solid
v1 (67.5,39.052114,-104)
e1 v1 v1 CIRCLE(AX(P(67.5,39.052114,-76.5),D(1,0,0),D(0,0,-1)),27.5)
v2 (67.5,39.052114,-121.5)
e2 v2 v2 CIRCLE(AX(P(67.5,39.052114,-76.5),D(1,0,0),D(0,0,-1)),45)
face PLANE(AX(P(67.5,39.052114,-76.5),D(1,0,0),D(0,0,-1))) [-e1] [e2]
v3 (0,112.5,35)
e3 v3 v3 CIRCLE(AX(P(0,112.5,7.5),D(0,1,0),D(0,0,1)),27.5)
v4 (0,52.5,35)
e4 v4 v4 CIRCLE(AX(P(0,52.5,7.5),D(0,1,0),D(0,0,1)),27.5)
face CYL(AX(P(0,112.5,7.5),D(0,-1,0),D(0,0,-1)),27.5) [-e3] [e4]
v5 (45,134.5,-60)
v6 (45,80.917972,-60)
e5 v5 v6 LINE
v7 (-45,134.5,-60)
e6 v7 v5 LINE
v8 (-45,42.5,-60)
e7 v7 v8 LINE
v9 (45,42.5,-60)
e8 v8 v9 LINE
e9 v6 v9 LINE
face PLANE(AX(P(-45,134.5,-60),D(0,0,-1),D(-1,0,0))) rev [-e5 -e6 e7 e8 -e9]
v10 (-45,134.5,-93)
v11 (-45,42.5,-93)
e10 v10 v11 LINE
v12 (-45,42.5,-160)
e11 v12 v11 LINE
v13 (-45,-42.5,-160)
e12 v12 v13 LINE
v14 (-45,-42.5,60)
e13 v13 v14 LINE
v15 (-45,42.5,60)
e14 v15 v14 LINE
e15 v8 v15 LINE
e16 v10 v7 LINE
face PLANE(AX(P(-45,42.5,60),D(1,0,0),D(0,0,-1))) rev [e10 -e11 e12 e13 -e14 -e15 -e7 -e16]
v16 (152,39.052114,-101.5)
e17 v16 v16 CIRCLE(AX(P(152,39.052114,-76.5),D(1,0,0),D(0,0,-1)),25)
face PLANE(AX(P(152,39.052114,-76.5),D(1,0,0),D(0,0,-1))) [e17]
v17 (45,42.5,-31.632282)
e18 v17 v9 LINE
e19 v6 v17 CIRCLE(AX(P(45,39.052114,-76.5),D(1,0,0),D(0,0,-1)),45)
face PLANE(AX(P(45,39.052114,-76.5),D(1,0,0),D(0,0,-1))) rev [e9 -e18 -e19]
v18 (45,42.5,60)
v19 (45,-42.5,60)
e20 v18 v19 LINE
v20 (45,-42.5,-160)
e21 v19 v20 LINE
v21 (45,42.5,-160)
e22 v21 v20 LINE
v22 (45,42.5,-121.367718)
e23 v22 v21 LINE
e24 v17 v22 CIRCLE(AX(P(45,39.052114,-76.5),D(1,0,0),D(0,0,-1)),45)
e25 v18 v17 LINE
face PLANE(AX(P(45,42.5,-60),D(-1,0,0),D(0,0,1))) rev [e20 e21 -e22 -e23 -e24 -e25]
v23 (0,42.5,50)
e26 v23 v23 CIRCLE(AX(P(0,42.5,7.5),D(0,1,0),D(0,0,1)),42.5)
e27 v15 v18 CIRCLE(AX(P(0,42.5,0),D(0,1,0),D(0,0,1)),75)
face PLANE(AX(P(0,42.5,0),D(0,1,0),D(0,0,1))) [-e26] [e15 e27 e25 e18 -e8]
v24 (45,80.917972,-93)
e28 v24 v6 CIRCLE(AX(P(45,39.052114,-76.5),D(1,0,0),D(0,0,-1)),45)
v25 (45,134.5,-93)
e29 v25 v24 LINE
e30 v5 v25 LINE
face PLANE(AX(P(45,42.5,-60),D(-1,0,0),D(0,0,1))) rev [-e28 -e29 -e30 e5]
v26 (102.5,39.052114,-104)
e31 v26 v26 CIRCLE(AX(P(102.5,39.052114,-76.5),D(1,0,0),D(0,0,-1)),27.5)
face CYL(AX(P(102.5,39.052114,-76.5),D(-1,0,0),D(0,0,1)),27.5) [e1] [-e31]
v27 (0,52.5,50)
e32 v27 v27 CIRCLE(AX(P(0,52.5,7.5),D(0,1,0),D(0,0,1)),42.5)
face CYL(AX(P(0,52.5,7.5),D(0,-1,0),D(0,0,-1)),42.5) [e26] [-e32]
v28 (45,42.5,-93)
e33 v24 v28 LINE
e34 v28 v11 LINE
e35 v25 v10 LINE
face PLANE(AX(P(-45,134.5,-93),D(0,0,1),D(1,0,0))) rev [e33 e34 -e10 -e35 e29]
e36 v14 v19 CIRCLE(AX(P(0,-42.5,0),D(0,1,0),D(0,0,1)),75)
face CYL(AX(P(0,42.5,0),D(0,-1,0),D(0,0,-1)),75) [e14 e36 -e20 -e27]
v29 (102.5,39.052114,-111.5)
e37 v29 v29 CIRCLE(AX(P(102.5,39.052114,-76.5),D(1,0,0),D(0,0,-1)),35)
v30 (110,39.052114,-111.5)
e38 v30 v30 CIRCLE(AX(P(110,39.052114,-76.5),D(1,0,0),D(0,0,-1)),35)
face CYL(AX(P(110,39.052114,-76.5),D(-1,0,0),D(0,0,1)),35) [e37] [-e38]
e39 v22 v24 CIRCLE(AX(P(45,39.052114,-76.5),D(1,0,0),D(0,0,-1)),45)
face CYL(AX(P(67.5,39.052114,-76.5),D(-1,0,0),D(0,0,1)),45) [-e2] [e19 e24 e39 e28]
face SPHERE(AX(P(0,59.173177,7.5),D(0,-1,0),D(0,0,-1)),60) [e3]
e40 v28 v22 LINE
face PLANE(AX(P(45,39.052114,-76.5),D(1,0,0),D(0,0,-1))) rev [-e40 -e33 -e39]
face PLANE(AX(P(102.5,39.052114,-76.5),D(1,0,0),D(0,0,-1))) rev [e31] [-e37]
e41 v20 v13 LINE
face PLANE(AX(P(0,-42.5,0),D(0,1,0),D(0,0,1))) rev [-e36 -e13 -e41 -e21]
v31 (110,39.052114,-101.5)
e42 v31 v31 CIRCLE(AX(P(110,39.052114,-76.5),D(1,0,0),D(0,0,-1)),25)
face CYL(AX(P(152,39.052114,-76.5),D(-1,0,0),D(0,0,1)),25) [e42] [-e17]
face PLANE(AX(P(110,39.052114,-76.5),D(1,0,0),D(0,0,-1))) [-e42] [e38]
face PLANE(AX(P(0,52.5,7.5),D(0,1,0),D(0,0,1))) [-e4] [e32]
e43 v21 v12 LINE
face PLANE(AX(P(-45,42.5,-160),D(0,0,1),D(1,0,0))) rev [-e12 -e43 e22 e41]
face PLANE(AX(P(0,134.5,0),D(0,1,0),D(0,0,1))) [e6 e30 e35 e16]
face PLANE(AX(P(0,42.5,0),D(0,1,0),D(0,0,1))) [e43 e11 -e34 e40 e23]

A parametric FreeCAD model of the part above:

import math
import FreeCAD as App
import Part
import Sketcher

doc = App.newDocument("Part")
body = doc.addObject("PartDesign::Body", "Body")

# Sketch on XZ plane
sketch1 = body.newObject("Sketcher::SketchObject", "Sketch")
sketch1.AttachmentSupport = (doc.getObject("XZ_Plane"), [""])
sketch1.MapMode = "FlatFace"
sketch1.addGeometry(Part.LineSegment(App.Vector(45, -160, 0), App.Vector(-45, -160, 0)), False)
sketch1.addGeometry(Part.LineSegment(App.Vector(-45, -160, 0), App.Vector(-45, 60, 0)), False)
sketch1.addGeometry(Part.ArcOfCircle(Part.Circle(App.Vector(0, 0, 0), App.Vector(0, 0, 1), 75), math.radians(53), math.radians(127)), False)
sketch1.addGeometry(Part.LineSegment(App.Vector(45, 60, 0), App.Vector(45, -160, 0)), False)
sketch1.addConstraint(Sketcher.Constraint("Coincident", 0, 2, 1, 1))
sketch1.addConstraint(Sketcher.Constraint("Coincident", 1, 2, 2, 2))
sketch1.addConstraint(Sketcher.Constraint("Coincident", 2, 1, 3, 1))
sketch1.addConstraint(Sketcher.Constraint("Coincident", 3, 2, 0, 1))
sketch1.addConstraint(Sketcher.Constraint("Horizontal", 0))
sketch1.addConstraint(Sketcher.Constraint("Vertical", 1))
sketch1.addConstraint(Sketcher.Constraint("Vertical", 3))
sketch1.addConstraint(Sketcher.Constraint("Coincident", 2, 3, -1, 1))
sketch1.addConstraint(Sketcher.Constraint("Horizontal", 1, 2, 2, 1))
sketch1.addConstraint(Sketcher.Constraint("Radius", 2, 75.0))
sketch1.addConstraint(Sketcher.Constraint("DistanceX", 0, 2, 0, 1, 90.0))
sketch1.addConstraint(Sketcher.Constraint("DistanceY", 1, 1, 1, 2, 220.0))
pad1 = body.newObject("PartDesign::Pad", "Pad")
pad1.Profile = sketch1
pad1.Length = 85
pad1.Midplane = True

# Sketch on XZ plane
sketch2 = body.newObject("Sketcher::SketchObject", "Sketch001")
sketch2.AttachmentSupport = (doc.getObject("XZ_Plane"), [""])
sketch2.MapMode = "FlatFace"
sketch2.AttachmentOffset = App.Placement(App.Vector(0, 0, -42.5), App.Rotation())
sketch2.addGeometry(Part.Circle(App.Vector(0, 8, 0), App.Vector(0, 0, 1), 42), False)
sketch2.addConstraint(Sketcher.Constraint("PointOnObject", 0, 3, -2))
sketch2.addConstraint(Sketcher.Constraint("Diameter", 0, 85.0))
sketch2.addConstraint(Sketcher.Constraint("DistanceY", -1, 1, 0, 3, 7.5))
pad2 = body.newObject("PartDesign::Pad", "Pad001")
pad2.Profile = sketch2
pad2.Length = 10
pad2.Reversed = True

# Sketch on XZ plane
sketch3 = body.newObject("Sketcher::SketchObject", "Sketch002")
sketch3.AttachmentSupport = (doc.getObject("XZ_Plane"), [""])
sketch3.MapMode = "FlatFace"
sketch3.AttachmentOffset = App.Placement(App.Vector(0, 0, -52.5), App.Rotation())
sketch3.addGeometry(Part.Circle(App.Vector(0, 8, 0), App.Vector(0, 0, 1), 28), False)
sketch3.addConstraint(Sketcher.Constraint("PointOnObject", 0, 3, -2))
sketch3.addConstraint(Sketcher.Constraint("Diameter", 0, 55.0))
sketch3.addConstraint(Sketcher.Constraint("DistanceY", -1, 1, 0, 3, 7.5))
pad3 = body.newObject("PartDesign::Pad", "Pad002")
pad3.Profile = sketch3
pad3.Length = 60
pad3.Reversed = True

# Sketch on YZ plane
sketch4 = body.newObject("Sketcher::SketchObject", "Sketch003")
sketch4.AttachmentSupport = (doc.getObject("YZ_Plane"), [""])
sketch4.MapMode = "FlatFace"
sketch4.addGeometry(Part.LineSegment(App.Vector(112, 35, 0), App.Vector(112, 8, 0)), False)
sketch4.addGeometry(Part.LineSegment(App.Vector(112, 8, 0), App.Vector(119, 8, 0)), False)
sketch4.addGeometry(Part.ArcOfCircle(Part.Circle(App.Vector(59, 7, 0), App.Vector(0, 0, 1), 60), math.radians(0), math.radians(27)), False)
sketch4.addGeometry(Part.LineSegment(App.Vector(59, 8, 0), App.Vector(119, 8, 0)), True)  # axis
sketch4.addConstraint(Sketcher.Constraint("Coincident", 0, 2, 1, 1))
sketch4.addConstraint(Sketcher.Constraint("Coincident", 1, 2, 2, 1))
sketch4.addConstraint(Sketcher.Constraint("Coincident", 2, 2, 0, 1))
sketch4.addConstraint(Sketcher.Constraint("Vertical", 0))
sketch4.addConstraint(Sketcher.Constraint("Horizontal", 1))
sketch4.addConstraint(Sketcher.Constraint("Horizontal", 3))
sketch4.addConstraint(Sketcher.Constraint("Coincident", 3, 1, 2, 3))
sketch4.addConstraint(Sketcher.Constraint("Coincident", 3, 2, 1, 2))
sketch4.addConstraint(Sketcher.Constraint("Radius", 2, 60.0))
sketch4.addConstraint(Sketcher.Constraint("DistanceY", 0, 2, 0, 1, 27.5))
sketch4.addConstraint(Sketcher.Constraint("DistanceY", -1, 1, 2, 2, 35.0))
sketch4.addConstraint(Sketcher.Constraint("DistanceX", -1, 1, 0, 2, 112.5))
revolution = body.newObject("PartDesign::Revolution", "Revolution")
revolution.Profile = sketch4
revolution.ReferenceAxis = (sketch4, ["Axis0"])
revolution.Angle = 360

# Sketch on XZ plane
sketch5 = body.newObject("Sketcher::SketchObject", "Sketch004")
sketch5.AttachmentSupport = (doc.getObject("XZ_Plane"), [""])
sketch5.MapMode = "FlatFace"
sketch5.AttachmentOffset = App.Placement(App.Vector(0, 0, -42.5), App.Rotation())
sketch5.addGeometry(Part.LineSegment(App.Vector(-45, -93, 0), App.Vector(-45, -60, 0)), False)
sketch5.addGeometry(Part.LineSegment(App.Vector(-45, -60, 0), App.Vector(45, -60, 0)), False)
sketch5.addGeometry(Part.LineSegment(App.Vector(45, -60, 0), App.Vector(45, -93, 0)), False)
sketch5.addGeometry(Part.LineSegment(App.Vector(45, -93, 0), App.Vector(-45, -93, 0)), False)
sketch5.addConstraint(Sketcher.Constraint("Coincident", 0, 2, 1, 1))
sketch5.addConstraint(Sketcher.Constraint("Coincident", 1, 2, 2, 1))
sketch5.addConstraint(Sketcher.Constraint("Coincident", 2, 2, 3, 1))
sketch5.addConstraint(Sketcher.Constraint("Coincident", 3, 2, 0, 1))
sketch5.addConstraint(Sketcher.Constraint("Vertical", 0))
sketch5.addConstraint(Sketcher.Constraint("Horizontal", 1))
sketch5.addConstraint(Sketcher.Constraint("Vertical", 2))
sketch5.addConstraint(Sketcher.Constraint("Horizontal", 3))
sketch5.addConstraint(Sketcher.Constraint("DistanceX", 1, 1, 1, 2, 90.0))
sketch5.addConstraint(Sketcher.Constraint("DistanceY", 0, 1, 0, 2, 33.0))
sketch5.addConstraint(Sketcher.Constraint("DistanceX", 0, 2, -1, 1, 45.0))
sketch5.addConstraint(Sketcher.Constraint("DistanceY", 0, 2, -1, 1, 60.0))
pad4 = body.newObject("PartDesign::Pad", "Pad003")
pad4.Profile = sketch5
pad4.Length = 92
pad4.Reversed = True

# Sketch on YZ plane
sketch6 = body.newObject("Sketcher::SketchObject", "Sketch005")
sketch6.AttachmentSupport = (doc.getObject("YZ_Plane"), [""])
sketch6.MapMode = "FlatFace"
sketch6.AttachmentOffset = App.Placement(App.Vector(0, 0, 45), App.Rotation())
sketch6.addGeometry(Part.Circle(App.Vector(39, -76, 0), App.Vector(0, 0, 1), 45), False)
sketch6.addConstraint(Sketcher.Constraint("Diameter", 0, 90.0))
sketch6.addConstraint(Sketcher.Constraint("DistanceY", 0, 3, -1, 1, 76.5))
sketch6.addConstraint(Sketcher.Constraint("DistanceX", -1, 1, 0, 3, 39.052114))
pad5 = body.newObject("PartDesign::Pad", "Pad004")
pad5.Profile = sketch6
pad5.Length = 22.5

# Sketch on YZ plane
sketch7 = body.newObject("Sketcher::SketchObject", "Sketch006")
sketch7.AttachmentSupport = (doc.getObject("YZ_Plane"), [""])
sketch7.MapMode = "FlatFace"
sketch7.AttachmentOffset = App.Placement(App.Vector(0, 0, 67.5), App.Rotation())
sketch7.addGeometry(Part.Circle(App.Vector(39, -76, 0), App.Vector(0, 0, 1), 28), False)
sketch7.addConstraint(Sketcher.Constraint("Diameter", 0, 55.0))
sketch7.addConstraint(Sketcher.Constraint("DistanceY", 0, 3, -1, 1, 76.5))
sketch7.addConstraint(Sketcher.Constraint("DistanceX", -1, 1, 0, 3, 39.052114))
pad6 = body.newObject("PartDesign::Pad", "Pad005")
pad6.Profile = sketch7
pad6.Length = 35

# Sketch on YZ plane
sketch8 = body.newObject("Sketcher::SketchObject", "Sketch007")
sketch8.AttachmentSupport = (doc.getObject("YZ_Plane"), [""])
sketch8.MapMode = "FlatFace"
sketch8.AttachmentOffset = App.Placement(App.Vector(0, 0, 102.5), App.Rotation())
sketch8.addGeometry(Part.Circle(App.Vector(39, -76, 0), App.Vector(0, 0, 1), 35), False)
sketch8.addConstraint(Sketcher.Constraint("Diameter", 0, 70.0))
sketch8.addConstraint(Sketcher.Constraint("DistanceY", 0, 3, -1, 1, 76.5))
sketch8.addConstraint(Sketcher.Constraint("DistanceX", -1, 1, 0, 3, 39.052114))
pad7 = body.newObject("PartDesign::Pad", "Pad006")
pad7.Profile = sketch8
pad7.Length = 7.5

# Sketch on YZ plane
sketch9 = body.newObject("Sketcher::SketchObject", "Sketch008")
sketch9.AttachmentSupport = (doc.getObject("YZ_Plane"), [""])
sketch9.MapMode = "FlatFace"
sketch9.AttachmentOffset = App.Placement(App.Vector(0, 0, 110), App.Rotation())
sketch9.addGeometry(Part.Circle(App.Vector(39, -76, 0), App.Vector(0, 0, 1), 25), False)
sketch9.addConstraint(Sketcher.Constraint("Diameter", 0, 50.0))
sketch9.addConstraint(Sketcher.Constraint("DistanceY", 0, 3, -1, 1, 76.5))
sketch9.addConstraint(Sketcher.Constraint("DistanceX", -1, 1, 0, 3, 39.052114))
pad8 = body.newObject("PartDesign::Pad", "Pad007")
pad8.Profile = sketch9
pad8.Length = 42

doc.recompute()
